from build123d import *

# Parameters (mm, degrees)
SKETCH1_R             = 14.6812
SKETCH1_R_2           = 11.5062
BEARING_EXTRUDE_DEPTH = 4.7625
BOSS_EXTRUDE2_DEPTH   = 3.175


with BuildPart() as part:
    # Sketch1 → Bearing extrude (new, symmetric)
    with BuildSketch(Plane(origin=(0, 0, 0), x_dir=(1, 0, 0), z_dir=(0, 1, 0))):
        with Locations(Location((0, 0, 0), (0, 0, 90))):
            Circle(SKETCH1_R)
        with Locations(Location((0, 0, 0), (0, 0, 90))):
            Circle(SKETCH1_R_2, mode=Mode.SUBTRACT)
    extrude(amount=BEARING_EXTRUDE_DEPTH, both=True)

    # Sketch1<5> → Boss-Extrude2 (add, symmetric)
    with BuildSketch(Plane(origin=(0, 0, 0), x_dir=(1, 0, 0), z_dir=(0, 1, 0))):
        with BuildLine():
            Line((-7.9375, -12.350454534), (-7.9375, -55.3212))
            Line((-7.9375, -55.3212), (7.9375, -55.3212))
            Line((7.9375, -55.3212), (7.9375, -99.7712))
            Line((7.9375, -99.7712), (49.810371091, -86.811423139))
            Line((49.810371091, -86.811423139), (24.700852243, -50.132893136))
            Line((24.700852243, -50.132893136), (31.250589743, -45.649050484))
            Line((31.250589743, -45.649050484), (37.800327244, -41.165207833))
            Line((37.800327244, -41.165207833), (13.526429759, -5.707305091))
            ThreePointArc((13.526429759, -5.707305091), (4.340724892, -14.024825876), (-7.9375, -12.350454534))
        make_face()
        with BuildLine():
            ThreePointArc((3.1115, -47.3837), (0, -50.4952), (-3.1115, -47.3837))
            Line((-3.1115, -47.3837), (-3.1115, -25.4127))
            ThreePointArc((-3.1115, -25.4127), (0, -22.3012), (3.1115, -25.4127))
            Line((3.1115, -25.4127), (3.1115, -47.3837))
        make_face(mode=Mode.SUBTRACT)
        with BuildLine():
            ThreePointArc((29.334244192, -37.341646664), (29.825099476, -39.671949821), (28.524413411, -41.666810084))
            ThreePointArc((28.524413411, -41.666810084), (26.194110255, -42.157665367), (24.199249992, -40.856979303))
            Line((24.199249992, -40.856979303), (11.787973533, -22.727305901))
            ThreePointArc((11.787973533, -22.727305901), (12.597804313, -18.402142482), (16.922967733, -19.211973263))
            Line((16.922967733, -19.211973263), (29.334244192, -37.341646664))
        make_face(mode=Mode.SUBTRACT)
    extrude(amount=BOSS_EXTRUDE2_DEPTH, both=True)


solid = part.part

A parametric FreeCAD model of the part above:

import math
import FreeCAD as App
import Part
import Sketcher
from FreeCAD import Vector
Q = App.Units.Quantity

doc = App.newDocument("Part")
body = doc.addObject("PartDesign::Body", "Body")

# Sketch on XZ plane
sketch1 = body.newObject("Sketcher::SketchObject", "Sketch")
sketch1.AttachmentSupport = (doc.getObject("XZ_Plane"), [""])
sketch1.MapMode = "FlatFace"
sketch1.addGeometry([
    Part.Circle(Vector(0, 0, 0), Vector(0, 0, 1), 15),
    Part.Circle(Vector(0, 0, 0), Vector(0, 0, 1), 12),
], False)
sketch1.addConstraint([
    Sketcher.Constraint("Coincident", 0, 3, -1, 1),
    Sketcher.Constraint("Coincident", 1, 3, -1, 1),
    Sketcher.Constraint("Diameter", 0, Q("1.156 in")),
    Sketcher.Constraint("Diameter", 1, Q("0.906 in")),
])
pad1 = body.newObject("PartDesign::Pad", "Pad")
pad1.Profile = sketch1
pad1.Length = Q("0.375 in")
pad1.Midplane = True

# Sketch on XZ plane
sketch2 = body.newObject("Sketcher::SketchObject", "Sketch001")
sketch2.AttachmentSupport = (doc.getObject("XZ_Plane"), [""])
sketch2.MapMode = "FlatFace"
sketch2.addGeometry([
    Part.LineSegment(Vector(-7.9, 12.4, 0), Vector(-7.9, 55.3, 0)),  # 0
    Part.LineSegment(Vector(-7.9, 55.3, 0), Vector(7.9, 55.3, 0)),  # 1
    Part.LineSegment(Vector(7.9, 55.3, 0), Vector(7.9, 99.8, 0)),  # 2
    Part.LineSegment(Vector(7.9, 99.8, 0), Vector(49.8, 86.8, 0)),  # 3
    Part.LineSegment(Vector(49.8, 86.8, 0), Vector(24.7, 50.1, 0)),  # 4
    Part.LineSegment(Vector(24.7, 50.1, 0), Vector(31.3, 45.6, 0)),  # 5
    Part.LineSegment(Vector(31.3, 45.6, 0), Vector(37.8, 41.2, 0)),  # 6
    Part.LineSegment(Vector(37.8, 41.2, 0), Vector(13.5, 5.7, 0)),  # 7
    Part.ArcOfCircle(Part.Circle(Vector(0, 0, 0), Vector(0, 0, 1), 14.7), math.radians(23), math.radians(123)),  # 8
    Part.LineSegment(Vector(3.1, 25.4, 0), Vector(3.1, 47.4, 0)),  # 9
    Part.ArcOfCircle(Part.Circle(Vector(0, 47.4, 0), Vector(0, 0, 1), 3.1), math.radians(0), math.radians(180)),  # 10
    Part.LineSegment(Vector(-3.1, 47.4, 0), Vector(-3.1, 25.4, 0)),  # 11
    Part.ArcOfCircle(Part.Circle(Vector(0, 25.4, 0), Vector(0, 0, 1), 3.1), math.radians(180), math.radians(360)),  # 12
    Part.LineSegment(Vector(16.9, 19.2, 0), Vector(29.3, 37.3, 0)),  # 13
    Part.ArcOfCircle(Part.Circle(Vector(26.8, 39.1, 0), Vector(0, 0, 1), 3.1), math.radians(-34), math.radians(56)),  # 14
    Part.ArcOfCircle(Part.Circle(Vector(26.8, 39.1, 0), Vector(0, 0, 1), 3.1), math.radians(56), math.radians(146)),  # 15
    Part.LineSegment(Vector(24.2, 40.9, 0), Vector(11.8, 22.7, 0)),  # 16
    Part.ArcOfCircle(Part.Circle(Vector(14.4, 21, 0), Vector(0, 0, 1), 3.1), math.radians(146), math.radians(326)),  # 17
], False)
sketch2.addConstraint([
    Sketcher.Constraint("Coincident", 0, 2, 1, 1),
    Sketcher.Constraint("Coincident", 1, 2, 2, 1),
    Sketcher.Constraint("Coincident", 2, 2, 3, 1),
    Sketcher.Constraint("Coincident", 3, 2, 4, 1),
    Sketcher.Constraint("Coincident", 4, 2, 5, 1),
    Sketcher.Constraint("Coincident", 5, 2, 6, 1),
    Sketcher.Constraint("Coincident", 6, 2, 7, 1),
    Sketcher.Constraint("Coincident", 7, 2, 8, 1),
    Sketcher.Constraint("Coincident", 8, 2, 0, 1),
    Sketcher.Constraint("Tangent", 9, 2, 10, 1),
    Sketcher.Constraint("Tangent", 10, 2, 11, 1),
    Sketcher.Constraint("Tangent", 11, 2, 12, 1),
    Sketcher.Constraint("Tangent", 12, 2, 9, 1),
    Sketcher.Constraint("Tangent", 13, 2, 14, 1),
    Sketcher.Constraint("Tangent", 14, 2, 15, 1),
    Sketcher.Constraint("Tangent", 15, 2, 16, 1),
    Sketcher.Constraint("Tangent", 16, 2, 17, 1),
    Sketcher.Constraint("Tangent", 17, 2, 13, 1),
    Sketcher.Constraint("Vertical", 0),
    Sketcher.Constraint("Horizontal", 1),
    Sketcher.Constraint("Vertical", 2),
    Sketcher.Constraint("Vertical", 9),
    Sketcher.Constraint("Vertical", 11),
    Sketcher.Constraint("Coincident", 8, 3, -1, 1),
    Sketcher.Constraint("Equal", 12, 14),
    Sketcher.Constraint("Equal", 14, 15),
    Sketcher.Constraint("Equal", 15, 17),
    Sketcher.Constraint("PointOnObject", 10, 3, -2),
    Sketcher.Constraint("Perpendicular", 4, 5),
    Sketcher.Constraint("Parallel", 5, 6),
    Sketcher.Constraint("Perpendicular", 6, 7),
    Sketcher.Constraint("Parallel", 7, 13),
    Sketcher.Constraint("Equal", 5, 6),
    Sketcher.Constraint("Radius", 8, Q("0.578 in")),
    Sketcher.Constraint("DistanceY", 2, 1, 2, 2, Q("1.75 in")),
    Sketcher.Constraint("Radius", 10, Q("0.1225 in")),
    Sketcher.Constraint("Distance", 4, Q("1.75 in")),
    Sketcher.Constraint("DistanceX", 1, 1, 1, 2, Q("0.625 in")),
    Sketcher.Constraint("DistanceY", 9, 1, 9, 2, Q("0.865 in")),
    Sketcher.Constraint("DistanceX", 9, 2, 1, 2, Q("0.19 in")),
    Sketcher.Constraint("Distance", 5, Q("0.3125 in")),
    Sketcher.Constraint("Distance", 13, Q("0.865 in")),
    Sketcher.Constraint("DistanceY", -1, 1, 0, 2, Q("2.178 in")),
    Sketcher.Constraint("DistanceY", 10, 3, 0, 2, Q("0.3125 in")),
    Sketcher.Constraint("DistanceY", 7, 2, 16, 2, Q("17.020001 mm")),
    Sketcher.Constraint("Distance", 3, Q("43.832558 mm")),
    Sketcher.Constraint("DistanceX", -1, 1, 17, 3, Q("14.355471 mm")),
    Sketcher.Constraint("DistanceY", -1, 1, 17, 3, Q("20.96964 mm")),
    Sketcher.Constraint("DistanceX", -1, 1, 3, 2, Q("49.810371 mm")),
    Sketcher.Constraint("DistanceY", -1, 1, 14, 2, Q("41.66681 mm")),
])
pad2 = body.newObject("PartDesign::Pad", "Pad001")
pad2.Profile = sketch2
pad2.Length = Q("0.25 in")
pad2.Midplane = True

doc.recompute()
